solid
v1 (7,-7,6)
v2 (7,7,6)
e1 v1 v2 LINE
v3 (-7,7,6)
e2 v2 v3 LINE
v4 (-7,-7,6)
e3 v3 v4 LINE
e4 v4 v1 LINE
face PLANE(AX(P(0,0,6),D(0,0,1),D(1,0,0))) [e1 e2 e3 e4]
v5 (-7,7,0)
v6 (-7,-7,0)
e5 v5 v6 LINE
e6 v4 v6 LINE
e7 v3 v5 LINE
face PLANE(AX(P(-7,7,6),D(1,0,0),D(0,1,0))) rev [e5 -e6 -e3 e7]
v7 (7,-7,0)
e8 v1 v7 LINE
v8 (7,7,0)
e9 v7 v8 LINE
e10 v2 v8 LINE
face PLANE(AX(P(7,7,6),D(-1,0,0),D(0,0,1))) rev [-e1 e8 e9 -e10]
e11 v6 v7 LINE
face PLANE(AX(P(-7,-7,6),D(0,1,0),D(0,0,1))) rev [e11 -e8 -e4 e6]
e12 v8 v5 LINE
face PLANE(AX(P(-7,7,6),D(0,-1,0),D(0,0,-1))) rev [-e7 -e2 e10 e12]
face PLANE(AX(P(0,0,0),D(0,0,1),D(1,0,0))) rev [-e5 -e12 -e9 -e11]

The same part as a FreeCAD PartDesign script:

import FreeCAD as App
import Part
import Sketcher


def add_polygon(sketch, points):
    """Adds a closed chain of lines whose ends are joined by coincident constraints."""
    first, n = sketch.GeometryCount, len(points)
    for a, b in zip(points, points[1:] + points[:1]):
        sketch.addGeometry(Part.LineSegment(App.Vector(*a, 0), App.Vector(*b, 0)), False)
    for i in range(n):
        sketch.addConstraint(Sketcher.Constraint("Coincident", first + i, 2, first + (i + 1) % n, 1))

doc = App.newDocument("Part")
body = doc.addObject("PartDesign::Body", "Body")

sketch1 = body.newObject("Sketcher::SketchObject", "Sketch")
sketch1.AttachmentSupport = (doc.getObject("XY_Plane"), [""])
sketch1.MapMode = "FlatFace"
add_polygon(sketch1, [(-7, 7), (-7, -7), (7, -7), (7, 7)])
sketch1.addConstraint(Sketcher.Constraint("Vertical", 0))
sketch1.addConstraint(Sketcher.Constraint("Horizontal", 1))
sketch1.addConstraint(Sketcher.Constraint("Vertical", 2))
sketch1.addConstraint(Sketcher.Constraint("Horizontal", 3))
sketch1.addConstraint(Sketcher.Constraint("Symmetric", 0, 2, 2, 2, -1, 1))
sketch1.addConstraint(Sketcher.Constraint("Equal", 3, 0))
sketch1.addConstraint(Sketcher.Constraint("DistanceX", 1, 1, 1, 2, 14.0))
pad1 = body.newObject("PartDesign::Pad", "Pad")
pad1.Profile = sketch1
pad1.Length = 6

doc.recompute()
